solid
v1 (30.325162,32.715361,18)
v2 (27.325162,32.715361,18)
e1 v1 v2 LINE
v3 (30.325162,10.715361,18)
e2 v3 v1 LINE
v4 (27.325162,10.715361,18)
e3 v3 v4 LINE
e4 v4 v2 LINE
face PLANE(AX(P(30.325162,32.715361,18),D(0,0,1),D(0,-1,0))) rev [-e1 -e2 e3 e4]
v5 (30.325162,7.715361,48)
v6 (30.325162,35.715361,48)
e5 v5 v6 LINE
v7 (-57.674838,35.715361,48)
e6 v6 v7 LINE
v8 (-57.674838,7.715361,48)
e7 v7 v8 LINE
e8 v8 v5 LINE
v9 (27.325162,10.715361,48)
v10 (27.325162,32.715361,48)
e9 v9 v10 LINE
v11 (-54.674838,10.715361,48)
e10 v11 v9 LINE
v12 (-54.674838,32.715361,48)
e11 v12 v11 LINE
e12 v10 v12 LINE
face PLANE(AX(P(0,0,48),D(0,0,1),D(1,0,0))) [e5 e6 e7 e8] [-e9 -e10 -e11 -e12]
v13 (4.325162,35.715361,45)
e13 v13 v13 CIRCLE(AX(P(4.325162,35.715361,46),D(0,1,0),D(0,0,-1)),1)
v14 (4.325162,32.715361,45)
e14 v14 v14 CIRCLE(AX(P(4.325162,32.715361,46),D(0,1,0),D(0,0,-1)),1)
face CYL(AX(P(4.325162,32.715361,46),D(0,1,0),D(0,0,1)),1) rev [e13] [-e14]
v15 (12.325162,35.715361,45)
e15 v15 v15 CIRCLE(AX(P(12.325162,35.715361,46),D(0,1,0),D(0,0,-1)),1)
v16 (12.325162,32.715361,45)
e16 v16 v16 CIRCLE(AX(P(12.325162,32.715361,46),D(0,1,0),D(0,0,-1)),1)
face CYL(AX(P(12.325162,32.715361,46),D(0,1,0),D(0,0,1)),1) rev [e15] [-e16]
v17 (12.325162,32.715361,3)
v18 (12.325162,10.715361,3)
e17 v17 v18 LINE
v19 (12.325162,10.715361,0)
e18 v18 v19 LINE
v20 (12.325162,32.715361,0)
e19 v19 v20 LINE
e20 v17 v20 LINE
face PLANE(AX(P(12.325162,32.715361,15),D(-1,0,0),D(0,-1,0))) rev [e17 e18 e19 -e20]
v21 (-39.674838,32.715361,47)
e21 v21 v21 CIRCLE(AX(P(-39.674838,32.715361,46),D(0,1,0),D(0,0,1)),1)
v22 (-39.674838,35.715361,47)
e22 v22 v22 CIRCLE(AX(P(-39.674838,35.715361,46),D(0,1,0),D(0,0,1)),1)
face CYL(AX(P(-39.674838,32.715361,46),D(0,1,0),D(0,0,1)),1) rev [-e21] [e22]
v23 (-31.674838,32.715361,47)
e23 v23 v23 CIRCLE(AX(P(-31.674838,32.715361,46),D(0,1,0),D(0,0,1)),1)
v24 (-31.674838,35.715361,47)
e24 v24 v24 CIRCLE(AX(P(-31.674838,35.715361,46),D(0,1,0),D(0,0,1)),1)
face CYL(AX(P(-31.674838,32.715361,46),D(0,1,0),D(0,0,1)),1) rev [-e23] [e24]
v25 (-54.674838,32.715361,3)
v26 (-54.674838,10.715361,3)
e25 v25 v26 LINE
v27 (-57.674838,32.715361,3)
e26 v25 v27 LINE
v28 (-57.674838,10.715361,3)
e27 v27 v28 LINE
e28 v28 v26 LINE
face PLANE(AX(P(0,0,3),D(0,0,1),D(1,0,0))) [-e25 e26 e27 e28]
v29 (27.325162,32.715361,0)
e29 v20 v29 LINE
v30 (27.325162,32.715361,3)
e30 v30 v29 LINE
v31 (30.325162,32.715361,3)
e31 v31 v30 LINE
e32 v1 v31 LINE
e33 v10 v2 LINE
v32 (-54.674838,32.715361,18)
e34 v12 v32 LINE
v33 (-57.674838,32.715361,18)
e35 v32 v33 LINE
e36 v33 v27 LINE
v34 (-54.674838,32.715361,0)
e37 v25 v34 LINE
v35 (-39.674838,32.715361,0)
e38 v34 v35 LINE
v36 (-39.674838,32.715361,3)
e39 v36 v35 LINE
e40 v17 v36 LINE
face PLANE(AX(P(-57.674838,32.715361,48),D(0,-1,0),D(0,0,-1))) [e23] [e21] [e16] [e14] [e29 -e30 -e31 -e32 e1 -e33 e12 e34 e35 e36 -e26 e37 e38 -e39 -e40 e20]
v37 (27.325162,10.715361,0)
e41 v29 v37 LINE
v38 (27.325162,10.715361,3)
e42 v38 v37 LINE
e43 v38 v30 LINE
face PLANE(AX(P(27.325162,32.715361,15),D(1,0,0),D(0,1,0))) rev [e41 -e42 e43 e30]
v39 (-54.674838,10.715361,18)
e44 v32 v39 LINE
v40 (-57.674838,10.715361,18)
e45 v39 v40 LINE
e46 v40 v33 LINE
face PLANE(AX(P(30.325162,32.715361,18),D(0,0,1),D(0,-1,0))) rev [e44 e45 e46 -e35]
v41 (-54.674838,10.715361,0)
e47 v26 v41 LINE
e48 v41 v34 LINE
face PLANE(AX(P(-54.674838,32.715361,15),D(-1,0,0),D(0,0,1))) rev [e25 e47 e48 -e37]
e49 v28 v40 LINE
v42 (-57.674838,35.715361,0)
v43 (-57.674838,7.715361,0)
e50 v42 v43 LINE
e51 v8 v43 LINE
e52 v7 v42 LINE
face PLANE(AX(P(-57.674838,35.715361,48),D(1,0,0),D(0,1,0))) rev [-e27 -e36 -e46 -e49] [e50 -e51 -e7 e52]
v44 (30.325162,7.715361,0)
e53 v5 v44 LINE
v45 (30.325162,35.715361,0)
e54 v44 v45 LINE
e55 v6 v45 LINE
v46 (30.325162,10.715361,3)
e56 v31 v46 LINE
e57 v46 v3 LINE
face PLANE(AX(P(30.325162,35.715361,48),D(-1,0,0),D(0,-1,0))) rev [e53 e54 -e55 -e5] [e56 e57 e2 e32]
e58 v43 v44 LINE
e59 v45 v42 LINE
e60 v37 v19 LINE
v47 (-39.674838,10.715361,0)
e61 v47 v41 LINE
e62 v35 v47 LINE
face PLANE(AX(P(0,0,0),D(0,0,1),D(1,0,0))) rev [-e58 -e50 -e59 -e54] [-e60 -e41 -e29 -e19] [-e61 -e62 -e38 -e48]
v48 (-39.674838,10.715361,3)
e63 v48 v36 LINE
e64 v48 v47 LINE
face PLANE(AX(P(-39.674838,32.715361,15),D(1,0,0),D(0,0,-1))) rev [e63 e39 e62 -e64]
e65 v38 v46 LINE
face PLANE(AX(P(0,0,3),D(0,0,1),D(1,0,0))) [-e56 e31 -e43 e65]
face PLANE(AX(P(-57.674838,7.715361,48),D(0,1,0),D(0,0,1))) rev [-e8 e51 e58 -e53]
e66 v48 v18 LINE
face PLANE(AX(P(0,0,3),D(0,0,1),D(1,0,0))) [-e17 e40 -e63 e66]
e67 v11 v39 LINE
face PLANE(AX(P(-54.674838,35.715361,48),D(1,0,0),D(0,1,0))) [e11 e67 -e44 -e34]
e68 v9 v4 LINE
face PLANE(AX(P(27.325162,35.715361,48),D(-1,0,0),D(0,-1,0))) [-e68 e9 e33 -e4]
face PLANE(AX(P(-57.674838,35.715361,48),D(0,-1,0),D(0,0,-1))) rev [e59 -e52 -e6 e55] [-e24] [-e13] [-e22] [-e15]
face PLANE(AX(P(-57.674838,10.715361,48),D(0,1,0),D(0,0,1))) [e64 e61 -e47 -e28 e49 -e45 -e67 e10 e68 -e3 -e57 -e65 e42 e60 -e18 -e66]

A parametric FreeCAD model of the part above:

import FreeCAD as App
import Part
import Sketcher
from FreeCAD import Vector
Q = App.Units.Quantity


def faces_at(feature, points):
    """Names of the faces that lie closest to the given points."""
    faces = feature.Shape.Faces
    near = lambda p: min(range(len(faces)), key=lambda i: faces[i].distToShape(Part.Vertex(*p))[0])
    return sorted({f"Face{near(p) + 1}" for p in points})


def add_polygon(sketch, points):
    """Adds a closed chain of lines whose ends are joined by coincident constraints."""
    first, n = sketch.GeometryCount, len(points)
    for a, b in zip(points, points[1:] + points[:1]):
        sketch.addGeometry(Part.LineSegment(App.Vector(*a, 0), App.Vector(*b, 0)), False)
    for i in range(n):
        sketch.addConstraint(Sketcher.Constraint("Coincident", first + i, 2, first + (i + 1) % n, 1))

doc = App.newDocument("Part")
body = doc.addObject("PartDesign::Body", "Body")

# Sketch on XY plane
sketch1 = doc.addObject("Sketcher::SketchObject", "Sketch")
body.addObject(sketch1)
sketch1.AttachmentSupport = (doc.XY_Plane, [""])
sketch1.MapMode = "FlatFace"
add_polygon(sketch1, [(-57.674838, 35.715361), (-57.674838, 7.715361), (30.325162, 7.715361), (30.325162, 35.715361)])  # lines 0-3
sketch1.addConstraint(Sketcher.Constraint("Vertical", 0))
sketch1.addConstraint(Sketcher.Constraint("Horizontal", 1))
sketch1.addConstraint(Sketcher.Constraint("Vertical", 2))
sketch1.addConstraint(Sketcher.Constraint("Horizontal", 3))
sketch1.addConstraint(Sketcher.Constraint("DistanceX", 1, 1, 1, 2, Q("88 mm")))
sketch1.addConstraint(Sketcher.Constraint("DistanceY", 0, 2, 0, 1, Q("28 mm")))
sketch1.addConstraint(Sketcher.Constraint("DistanceY", -1, 1, 0, 2, Q("7.715361 mm")))
sketch1.addConstraint(Sketcher.Constraint("DistanceX", 0, 2, -1, 1, Q("57.674838 mm")))
pad1 = doc.addObject("PartDesign::Pad", "Pad")
body.addObject(pad1)
pad1.Profile = sketch1
pad1.Length = 48
doc.recompute()

thickness = doc.addObject("PartDesign::Thickness", "Thickness")
body.addObject(thickness)
thickness.Base = (pad1, faces_at(pad1, [(-13.675, 21.715, 48)]))
thickness.Value = 3
thickness.Reversed = True
thickness.Join = "Intersection"

# Sketch on XZ plane
sketch2 = doc.addObject("Sketcher::SketchObject", "Sketch001")
body.addObject(sketch2)
sketch2.AttachmentSupport = (doc.XZ_Plane, [""])
sketch2.MapMode = "FlatFace"
sketch2.AttachmentOffset = App.Placement(Vector(0, 0, -35.715361), App.Rotation())
sketch2.addGeometry(Part.Circle(Vector(-31.674838, 46, 0), Vector(0, 0, 1), 1), False)
sketch2.addGeometry(Part.Circle(Vector(-39.674838, 46, 0), Vector(0, 0, 1), 1), False)
sketch2.addGeometry(Part.Circle(Vector(12.325162, 46, 0), Vector(0, 0, 1), 1), False)
sketch2.addGeometry(Part.Circle(Vector(4.325162, 46, 0), Vector(0, 0, 1), 1), False)
sketch2.addConstraint(Sketcher.Constraint("Equal", 0, 1))
sketch2.addConstraint(Sketcher.Constraint("Equal", 1, 2))
sketch2.addConstraint(Sketcher.Constraint("Equal", 2, 3))
sketch2.addConstraint(Sketcher.Constraint("Horizontal", 0, 3, 1, 3))
sketch2.addConstraint(Sketcher.Constraint("Horizontal", 1, 3, 2, 3))
sketch2.addConstraint(Sketcher.Constraint("Horizontal", 2, 3, 3, 3))
sketch2.addConstraint(Sketcher.Constraint("Diameter", 0, Q("2 mm")))
sketch2.addConstraint(Sketcher.Constraint("DistanceY", -1, 1, 0, 3, Q("46 mm")))
sketch2.addConstraint(Sketcher.Constraint("DistanceX", 1, 3, 0, 3, Q("8 mm")))
sketch2.addConstraint(Sketcher.Constraint("DistanceX", 0, 3, 2, 3, Q("44 mm")))
sketch2.addConstraint(Sketcher.Constraint("DistanceX", 3, 3, 2, 3, Q("8 mm")))
sketch2.addConstraint(Sketcher.Constraint("DistanceX", 0, 3, -1, 1, Q("31.674838 mm")))
pocket1 = doc.addObject("PartDesign::Pocket", "Pocket")
body.addObject(pocket1)
pocket1.Profile = sketch2
pocket1.Length = 3
pocket1.Reversed = True

# Sketch on YZ plane
sketch3 = doc.addObject("Sketcher::SketchObject", "Sketch002")
body.addObject(sketch3)
sketch3.AttachmentSupport = (doc.YZ_Plane, [""])
sketch3.MapMode = "FlatFace"
sketch3.AttachmentOffset = App.Placement(Vector(0, 0, -57.674838), App.Rotation())
add_polygon(sketch3, [(32.715361, 3), (10.715361, 3), (10.715361, 18), (32.715361, 18)])  # lines 0-3
sketch3.addConstraint(Sketcher.Constraint("Horizontal", 0))
sketch3.addConstraint(Sketcher.Constraint("Vertical", 1))
sketch3.addConstraint(Sketcher.Constraint("Horizontal", 2))
sketch3.addConstraint(Sketcher.Constraint("Vertical", 3))
sketch3.addConstraint(Sketcher.Constraint("DistanceX", 0, 2, 0, 1, Q("22 mm")))
sketch3.addConstraint(Sketcher.Constraint("DistanceY", 1, 1, 1, 2, Q("15 mm")))
sketch3.addConstraint(Sketcher.Constraint("DistanceY", -1, 1, 0, 2, Q("3 mm")))
sketch3.addConstraint(Sketcher.Constraint("DistanceX", -1, 1, 0, 2, Q("10.715361 mm")))
pocket2 = doc.addObject("PartDesign::Pocket", "Pocket001")
body.addObject(pocket2)
pocket2.Profile = sketch3
pocket2.Type = "ThroughAll"
pocket2.Reversed = True

# Sketch on XY plane
sketch4 = doc.addObject("Sketcher::SketchObject", "Sketch003")
body.addObject(sketch4)
sketch4.AttachmentSupport = (doc.XY_Plane, [""])
sketch4.MapMode = "FlatFace"
add_polygon(sketch4, [(27.325162, 32.715361), (27.325162, 10.715361), (12.325162, 10.715361), (12.325162, 32.715361)])  # lines 0-3
add_polygon(sketch4, [(-39.674838, 32.715361), (-39.674838, 10.715361), (-54.674838, 10.715361), (-54.674838, 32.715361)])  # lines 4-7
sketch4.addConstraint(Sketcher.Constraint("Vertical", 0))
sketch4.addConstraint(Sketcher.Constraint("Horizontal", 1))
sketch4.addConstraint(Sketcher.Constraint("Vertical", 2))
sketch4.addConstraint(Sketcher.Constraint("Horizontal", 3))
sketch4.addConstraint(Sketcher.Constraint("Vertical", 4))
sketch4.addConstraint(Sketcher.Constraint("Horizontal", 5))
sketch4.addConstraint(Sketcher.Constraint("Vertical", 6))
sketch4.addConstraint(Sketcher.Constraint("Horizontal", 7))
sketch4.addConstraint(Sketcher.Constraint("Horizontal", 1, 2, 4, 2))
sketch4.addConstraint(Sketcher.Constraint("Horizontal", 3, 2, 6, 2))
sketch4.addConstraint(Sketcher.Constraint("Equal", 3, 5))
sketch4.addConstraint(Sketcher.Constraint("DistanceX", 1, 2, 1, 1, Q("15 mm")))
sketch4.addConstraint(Sketcher.Constraint("DistanceY", 0, 2, 0, 1, Q("22 mm")))
sketch4.addConstraint(Sketcher.Constraint("DistanceX", 4, 2, 1, 2, Q("52 mm")))
sketch4.addConstraint(Sketcher.Constraint("DistanceY", -1, 1, 0, 2, Q("10.715361 mm")))
sketch4.addConstraint(Sketcher.Constraint("DistanceX", -1, 1, 0, 2, Q("27.325162 mm")))
pocket3 = doc.addObject("PartDesign::Pocket", "Pocket002")
body.addObject(pocket3)
pocket3.Profile = sketch4
pocket3.Length = 15
pocket3.Reversed = True

doc.recompute()
